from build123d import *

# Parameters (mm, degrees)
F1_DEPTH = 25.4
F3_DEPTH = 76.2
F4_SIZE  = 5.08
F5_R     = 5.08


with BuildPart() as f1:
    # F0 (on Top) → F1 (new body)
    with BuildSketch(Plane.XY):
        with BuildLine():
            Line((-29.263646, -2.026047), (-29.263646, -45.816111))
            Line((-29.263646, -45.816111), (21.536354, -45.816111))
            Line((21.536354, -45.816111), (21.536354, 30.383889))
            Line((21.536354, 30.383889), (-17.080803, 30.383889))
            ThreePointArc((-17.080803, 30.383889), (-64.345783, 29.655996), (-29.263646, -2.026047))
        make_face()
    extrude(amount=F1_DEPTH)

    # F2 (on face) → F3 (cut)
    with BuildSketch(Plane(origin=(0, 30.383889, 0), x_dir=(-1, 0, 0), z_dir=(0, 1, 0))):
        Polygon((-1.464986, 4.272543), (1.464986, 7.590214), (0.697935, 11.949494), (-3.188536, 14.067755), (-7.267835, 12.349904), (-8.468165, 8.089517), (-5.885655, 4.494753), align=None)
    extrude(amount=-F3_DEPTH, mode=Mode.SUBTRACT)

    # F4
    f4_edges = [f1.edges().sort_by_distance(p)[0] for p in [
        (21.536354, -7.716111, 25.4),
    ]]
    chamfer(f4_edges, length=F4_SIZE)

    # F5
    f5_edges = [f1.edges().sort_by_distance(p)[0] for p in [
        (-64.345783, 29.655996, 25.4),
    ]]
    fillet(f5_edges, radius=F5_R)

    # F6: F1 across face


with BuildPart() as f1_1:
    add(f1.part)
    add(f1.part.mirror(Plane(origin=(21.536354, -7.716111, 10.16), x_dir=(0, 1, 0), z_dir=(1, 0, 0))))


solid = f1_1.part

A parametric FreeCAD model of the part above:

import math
import FreeCAD as App
import Part
import Sketcher

V = App.Vector
Q = App.Units.Quantity


def edges_at(feature, points):
    """Names of the edges that pass closest to the given points."""
    edges = feature.Shape.Edges
    near = lambda p: min(range(len(edges)), key=lambda i: edges[i].distToShape(Part.Vertex(*p))[0])
    return sorted({f"Edge{near(p) + 1}" for p in points})

doc = App.newDocument("Part")
body = doc.addObject("PartDesign::Body", "Body")

sketch1 = doc.addObject("Sketcher::SketchObject", "Sketch")
body.addObject(sketch1)
sketch1.AttachmentSupport = (doc.XY_Plane, [""])
sketch1.MapMode = "FlatFace"
sketch1.addGeometry([
    Part.LineSegment(V(-29.263646, -2.026047, 0), V(-29.263646, -45.816111, 0)),
    Part.LineSegment(V(-29.263646, -45.816111, 0), V(21.536354, -45.816111, 0)),
    Part.LineSegment(V(21.536354, -45.816111, 0), V(21.536354, 30.383889, 0)),
    Part.LineSegment(V(21.536354, 30.383889, 0), V(-17.080803, 30.383889, 0)),
    Part.ArcOfCircle(Part.Circle(V(-40.570052, 20.718736, 0), V(0, 0, 1), 25.4), math.radians(22.365761), math.radians(296.431919)),
], False)
sketch1.addConstraint([
    Sketcher.Constraint("Coincident", 0, 2, 1, 1),
    Sketcher.Constraint("Coincident", 1, 2, 2, 1),
    Sketcher.Constraint("Coincident", 2, 2, 3, 1),
    Sketcher.Constraint("Coincident", 3, 2, 4, 1),
    Sketcher.Constraint("Coincident", 4, 2, 0, 1),
    Sketcher.Constraint("Vertical", 0),
    Sketcher.Constraint("Horizontal", 1),
    Sketcher.Constraint("Vertical", 2),
    Sketcher.Constraint("Horizontal", 3),
    Sketcher.Constraint("Radius", 4, Q("1 in")),
    Sketcher.Constraint("DistanceX", 1, 1, 1, 2, Q("2 in")),
    Sketcher.Constraint("DistanceY", 2, 1, 2, 2, Q("3 in")),
    Sketcher.Constraint("DistanceX", 3, 2, 3, 1, Q("38.617157 mm")),
    Sketcher.Constraint("DistanceY", 0, 2, 0, 1, Q("43.790064 mm")),
    Sketcher.Constraint("DistanceY", 0, 2, -1, 1, Q("45.816111 mm")),
    Sketcher.Constraint("DistanceX", 4, 3, -1, 1, Q("40.570052 mm")),
])
pad1 = doc.addObject("PartDesign::Pad", "Pad")
body.addObject(pad1)
pad1.Profile = sketch1
pad1.Length = Q("1 in")

sketch2 = doc.addObject("Sketcher::SketchObject", "Sketch001")
body.addObject(sketch2)
sketch2.AttachmentSupport = (doc.XZ_Plane, [""])
sketch2.MapMode = "FlatFace"
sketch2.AttachmentOffset = App.Placement(V(0, 0, -30.383889), App.Rotation())
sketch2.addGeometry([
    Part.LineSegment(V(1.464986, 4.272543, 0), V(-1.464986, 7.590214, 0)),
    Part.LineSegment(V(-1.464986, 7.590214, 0), V(-0.697935, 11.949494, 0)),
    Part.LineSegment(V(-0.697935, 11.949494, 0), V(3.188536, 14.067755, 0)),
    Part.LineSegment(V(3.188536, 14.067755, 0), V(7.267835, 12.349904, 0)),
    Part.LineSegment(V(7.267835, 12.349904, 0), V(8.468165, 8.089517, 0)),
    Part.LineSegment(V(8.468165, 8.089517, 0), V(5.885655, 4.494753, 0)),
    Part.LineSegment(V(5.885655, 4.494753, 0), V(1.464986, 4.272543, 0)),
], False)
sketch2.addConstraint([
    Sketcher.Constraint("Coincident", 0, 2, 1, 1),
    Sketcher.Constraint("Coincident", 1, 2, 2, 1),
    Sketcher.Constraint("Coincident", 2, 2, 3, 1),
    Sketcher.Constraint("Coincident", 3, 2, 4, 1),
    Sketcher.Constraint("Coincident", 4, 2, 5, 1),
    Sketcher.Constraint("Coincident", 5, 2, 6, 1),
    Sketcher.Constraint("Coincident", 6, 2, 0, 1),
    Sketcher.Constraint("Equal", 0, 1),
    Sketcher.Constraint("Equal", 1, 2),
    Sketcher.Constraint("Equal", 2, 3),
    Sketcher.Constraint("Equal", 3, 4),
    Sketcher.Constraint("Equal", 4, 5),
    Sketcher.Constraint("Equal", 5, 6),
    Sketcher.Constraint("DistanceX", 2, 2, 3, 2, Q("4.079299 mm")),
    Sketcher.Constraint("DistanceX", 1, 2, 4, 2, Q("9.1661 mm")),
    Sketcher.Constraint("DistanceY", 5, 2, 2, 2, Q("9.573002 mm")),
    Sketcher.Constraint("Distance", 0, Q("4.426249 mm")),
    Sketcher.Constraint("DistanceX", 0, 2, 1, 2, Q("0.767051 mm")),
    Sketcher.Constraint("DistanceX", 1, 2, 2, 2, Q("3.886471 mm")),
    Sketcher.Constraint("DistanceX", 0, 2, -1, 1, Q("1.464986 mm")),
    Sketcher.Constraint("DistanceY", -1, 1, 0, 2, Q("7.590214 mm")),
])
pocket1 = doc.addObject("PartDesign::Pocket", "Pocket")
body.addObject(pocket1)
pocket1.Profile = sketch2
pocket1.Length = Q("3 in")
pocket1.Reversed = True
doc.recompute()

chamfer = doc.addObject("PartDesign::Chamfer", "Chamfer")
body.addObject(chamfer)
chamfer.Base = (pocket1, edges_at(pocket1, [(21.536, -7.716, 25.4)]))
chamfer.Size = Q("0.2 in")
doc.recompute()

fillet = doc.addObject("PartDesign::Fillet", "Fillet")
body.addObject(fillet)
fillet.Base = (chamfer, edges_at(chamfer, [(-64.346, 29.656, 25.4)]))
fillet.Radius = Q("0.2 in")
body2 = doc.addObject("PartDesign::Body", "Body001")
doc.recompute()

body2.BaseFeature = body
doc.recompute()

mirroring = doc.addObject("Part::Mirroring", "Mirroring")
mirroring.Source = body
mirroring.Base = V(21.536354, -7.716111, 10.16)
mirroring.Normal = V(1, 0, 0)
body3 = doc.addObject("PartDesign::Body", "Body002")
body3.BaseFeature = mirroring
boolean = doc.addObject("PartDesign::Boolean", "Boolean")
body2.addObject(boolean)
boolean.Type = "Fuse"
boolean.addObjects([body3])
doc.recompute()
mirroring.Visibility = False

doc.recompute()
